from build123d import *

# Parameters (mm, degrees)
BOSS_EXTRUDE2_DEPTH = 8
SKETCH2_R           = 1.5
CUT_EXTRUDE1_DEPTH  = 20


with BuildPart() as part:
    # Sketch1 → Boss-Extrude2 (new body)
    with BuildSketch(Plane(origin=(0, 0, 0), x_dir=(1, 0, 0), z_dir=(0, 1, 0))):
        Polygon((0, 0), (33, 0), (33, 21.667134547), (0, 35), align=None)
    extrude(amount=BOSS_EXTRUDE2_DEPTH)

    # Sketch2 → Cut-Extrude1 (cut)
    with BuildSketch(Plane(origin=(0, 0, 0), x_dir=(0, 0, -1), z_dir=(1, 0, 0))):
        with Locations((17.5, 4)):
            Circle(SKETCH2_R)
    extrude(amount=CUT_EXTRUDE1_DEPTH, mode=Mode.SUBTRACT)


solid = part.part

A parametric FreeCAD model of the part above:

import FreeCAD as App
import Part
import Sketcher
Q = App.Units.Quantity


def add_polygon(sketch, points):
    """Adds a closed chain of lines whose ends are joined by coincident constraints."""
    first, n = sketch.GeometryCount, len(points)
    for a, b in zip(points, points[1:] + points[:1]):
        sketch.addGeometry(Part.LineSegment(App.Vector(*a, 0), App.Vector(*b, 0)), False)
    for i in range(n):
        sketch.addConstraint(Sketcher.Constraint("Coincident", first + i, 2, first + (i + 1) % n, 1))

doc = App.newDocument("Part")
params = doc.addObject("Spreadsheet::Sheet", "Params")
for row, (alias, value) in enumerate([
    ("sketch1_width", "33 mm"),
    ("sketch1_height", "35 mm"),
    ("pad1_length", "8 mm"),
    ("sketch2_diameter", "3 mm"),
    ("pocket1_length", "20 mm"),
], start=1):
    params.set(f"A{row}", alias)
    params.set(f"B{row}", "=" + value)
    params.setAlias(f"B{row}", alias)

body = doc.addObject("PartDesign::Body", "Body")

sketch1 = body.newObject("Sketcher::SketchObject", "Sketch")
sketch1.AttachmentSupport = (doc.getObject("XZ_Plane"), [""])
sketch1.MapMode = "FlatFace"
add_polygon(sketch1, [(0, 0), (33, 0), (33, -21.667135), (0, -35)])
sketch1.addConstraint([
    Sketcher.Constraint("Horizontal", 0),
    Sketcher.Constraint("Vertical", 1),
    Sketcher.Constraint("Vertical", 3),
    Sketcher.Constraint("Coincident", 3, 2, -1, 1),
    Sketcher.Constraint("DistanceX", 0, 1, 0, 2, Q("33 mm")),
    Sketcher.Constraint("DistanceY", 3, 1, 3, 2, Q("35 mm")),
    Sketcher.Constraint("Angle", 2, Q("-158 deg")),
])
sketch1.setExpression("Constraints[8]", "Params.sketch1_width")
sketch1.setExpression("Constraints[9]", "Params.sketch1_height")
pad1 = body.newObject("PartDesign::Pad", "Pad")
pad1.Profile = sketch1
pad1.setExpression("Length", "Params.pad1_length")
pad1.Reversed = True

sketch2 = body.newObject("Sketcher::SketchObject", "Sketch001")
sketch2.AttachmentSupport = (doc.getObject("YZ_Plane"), [""])
sketch2.MapMode = "FlatFace"
sketch2.addGeometry(Part.Circle(App.Vector(4, -17.5, 0), App.Vector(0, 0, 1), 1.5), False)
sketch2.addConstraint([
    Sketcher.Constraint("Diameter", 0, Q("3 mm")),
    Sketcher.Constraint("DistanceX", -1, 1, 0, 3, Q("4 mm")),
    Sketcher.Constraint("DistanceY", 0, 3, -1, 1, Q("17.5 mm")),
])
sketch2.setExpression("Constraints[0]", "Params.sketch2_diameter")
pocket1 = body.newObject("PartDesign::Pocket", "Pocket")
pocket1.Profile = sketch2
pocket1.setExpression("Length", "Params.pocket1_length")
pocket1.Reversed = True

doc.recompute()
